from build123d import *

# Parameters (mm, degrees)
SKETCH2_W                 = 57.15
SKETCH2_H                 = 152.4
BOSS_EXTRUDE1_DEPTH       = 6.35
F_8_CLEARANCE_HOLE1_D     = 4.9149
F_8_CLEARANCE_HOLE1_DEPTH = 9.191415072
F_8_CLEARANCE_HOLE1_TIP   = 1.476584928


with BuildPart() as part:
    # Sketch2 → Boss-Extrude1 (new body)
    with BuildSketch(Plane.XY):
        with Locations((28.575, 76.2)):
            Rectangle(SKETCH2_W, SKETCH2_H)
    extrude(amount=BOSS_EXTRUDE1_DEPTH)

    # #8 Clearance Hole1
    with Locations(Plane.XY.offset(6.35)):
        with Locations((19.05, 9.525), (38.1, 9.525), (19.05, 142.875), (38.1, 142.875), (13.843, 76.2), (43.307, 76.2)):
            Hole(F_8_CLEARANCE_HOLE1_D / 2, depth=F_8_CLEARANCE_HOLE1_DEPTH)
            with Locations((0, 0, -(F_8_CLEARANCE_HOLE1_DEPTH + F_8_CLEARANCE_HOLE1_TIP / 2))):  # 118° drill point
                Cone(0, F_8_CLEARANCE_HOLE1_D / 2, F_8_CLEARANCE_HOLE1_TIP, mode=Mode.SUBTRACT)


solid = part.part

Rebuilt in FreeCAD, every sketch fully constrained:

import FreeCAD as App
import Part
import Sketcher
Q = App.Units.Quantity


def add_polygon(sketch, points):
    """Adds a closed chain of lines whose ends are joined by coincident constraints."""
    first, n = sketch.GeometryCount, len(points)
    for a, b in zip(points, points[1:] + points[:1]):
        sketch.addGeometry(Part.LineSegment(App.Vector(*a, 0), App.Vector(*b, 0)), False)
    for i in range(n):
        sketch.addConstraint(Sketcher.Constraint("Coincident", first + i, 2, first + (i + 1) % n, 1))

doc = App.newDocument("Part")
body = doc.addObject("PartDesign::Body", "Body")

# Sketch on XY plane
sketch1 = body.newObject("Sketcher::SketchObject", "Sketch")
sketch1.AttachmentSupport = (doc.getObject("XY_Plane"), [""])
sketch1.MapMode = "FlatFace"
add_polygon(sketch1, [(0, 152), (0, 0), (57, 0), (57, 152)])  # lines 0-3
sketch1.addConstraint(Sketcher.Constraint("Vertical", 0))
sketch1.addConstraint(Sketcher.Constraint("Horizontal", 1))
sketch1.addConstraint(Sketcher.Constraint("Vertical", 2))
sketch1.addConstraint(Sketcher.Constraint("Horizontal", 3))
sketch1.addConstraint(Sketcher.Constraint("Coincident", 0, 2, -1, 1))
sketch1.addConstraint(Sketcher.Constraint("DistanceY", 0, 2, 0, 1, Q("6 in")))
sketch1.addConstraint(Sketcher.Constraint("DistanceX", 1, 1, 1, 2, Q("2.25 in")))
pad1 = body.newObject("PartDesign::Pad", "Pad")
pad1.Profile = sketch1
pad1.Length = Q("0.25 in")

# Sketch on XY plane
sketch2 = body.newObject("Sketcher::SketchObject", "Sketch001")
sketch2.AttachmentSupport = (doc.getObject("XY_Plane"), [""])
sketch2.MapMode = "FlatFace"
sketch2.AttachmentOffset = App.Placement(App.Vector(0, 0, 0.25 * 25.4), App.Rotation())
sketch2.addGeometry(Part.Circle(App.Vector(19.1, 9.5, 0), App.Vector(0, 0, 1), 2.5), False)
sketch2.addGeometry(Part.Circle(App.Vector(38.1, 9.5, 0), App.Vector(0, 0, 1), 2.5), False)
sketch2.addGeometry(Part.Circle(App.Vector(19.1, 142.9, 0), App.Vector(0, 0, 1), 2.5), False)
sketch2.addGeometry(Part.Circle(App.Vector(38.1, 142.9, 0), App.Vector(0, 0, 1), 2.5), False)
sketch2.addGeometry(Part.Circle(App.Vector(13.8, 76.2, 0), App.Vector(0, 0, 1), 2.5), False)
sketch2.addGeometry(Part.Circle(App.Vector(43.3, 76.2, 0), App.Vector(0, 0, 1), 2.5), False)
sketch2.addConstraint(Sketcher.Constraint("Equal", 0, 1))
sketch2.addConstraint(Sketcher.Constraint("Equal", 1, 2))
sketch2.addConstraint(Sketcher.Constraint("Equal", 2, 3))
sketch2.addConstraint(Sketcher.Constraint("Equal", 3, 4))
sketch2.addConstraint(Sketcher.Constraint("Equal", 4, 5))
sketch2.addConstraint(Sketcher.Constraint("Horizontal", 0, 3, 1, 3))
sketch2.addConstraint(Sketcher.Constraint("Horizontal", 2, 3, 3, 3))
sketch2.addConstraint(Sketcher.Constraint("Horizontal", 4, 3, 5, 3))
sketch2.addConstraint(Sketcher.Constraint("Vertical", 0, 3, 2, 3))
sketch2.addConstraint(Sketcher.Constraint("Vertical", 1, 3, 3, 3))
sketch2.addConstraint(Sketcher.Constraint("DistanceY", -1, 1, 4, 3, Q("3 in")))
sketch2.addConstraint(Sketcher.Constraint("Diameter", 0, Q("0.1935 in")))
sketch2.addConstraint(Sketcher.Constraint("DistanceX", -1, 1, 1, 3, Q("1.5 in")))
sketch2.addConstraint(Sketcher.Constraint("DistanceX", -1, 1, 0, 3, Q("0.75 in")))
sketch2.addConstraint(Sketcher.Constraint("DistanceY", 0, 3, 2, 3, Q("5.25 in")))
sketch2.addConstraint(Sketcher.Constraint("DistanceX", 4, 3, 5, 3, Q("1.16 in")))
sketch2.addConstraint(Sketcher.Constraint("DistanceY", -1, 1, 0, 3, Q("0.375 in")))
sketch2.addConstraint(Sketcher.Constraint("DistanceX", -1, 1, 4, 3, Q("0.545 in")))
doc.recompute()
hole = body.newObject("PartDesign::Hole", "Hole")
hole.Profile = sketch2
hole.ThreadType = "None"
hole.Diameter = Q("0.1935 in")
hole.DepthType = "Dimension"
hole.Depth = 9.191415
hole.DrillPoint = "Angled"
hole.DrillPointAngle = 118

doc.recompute()
